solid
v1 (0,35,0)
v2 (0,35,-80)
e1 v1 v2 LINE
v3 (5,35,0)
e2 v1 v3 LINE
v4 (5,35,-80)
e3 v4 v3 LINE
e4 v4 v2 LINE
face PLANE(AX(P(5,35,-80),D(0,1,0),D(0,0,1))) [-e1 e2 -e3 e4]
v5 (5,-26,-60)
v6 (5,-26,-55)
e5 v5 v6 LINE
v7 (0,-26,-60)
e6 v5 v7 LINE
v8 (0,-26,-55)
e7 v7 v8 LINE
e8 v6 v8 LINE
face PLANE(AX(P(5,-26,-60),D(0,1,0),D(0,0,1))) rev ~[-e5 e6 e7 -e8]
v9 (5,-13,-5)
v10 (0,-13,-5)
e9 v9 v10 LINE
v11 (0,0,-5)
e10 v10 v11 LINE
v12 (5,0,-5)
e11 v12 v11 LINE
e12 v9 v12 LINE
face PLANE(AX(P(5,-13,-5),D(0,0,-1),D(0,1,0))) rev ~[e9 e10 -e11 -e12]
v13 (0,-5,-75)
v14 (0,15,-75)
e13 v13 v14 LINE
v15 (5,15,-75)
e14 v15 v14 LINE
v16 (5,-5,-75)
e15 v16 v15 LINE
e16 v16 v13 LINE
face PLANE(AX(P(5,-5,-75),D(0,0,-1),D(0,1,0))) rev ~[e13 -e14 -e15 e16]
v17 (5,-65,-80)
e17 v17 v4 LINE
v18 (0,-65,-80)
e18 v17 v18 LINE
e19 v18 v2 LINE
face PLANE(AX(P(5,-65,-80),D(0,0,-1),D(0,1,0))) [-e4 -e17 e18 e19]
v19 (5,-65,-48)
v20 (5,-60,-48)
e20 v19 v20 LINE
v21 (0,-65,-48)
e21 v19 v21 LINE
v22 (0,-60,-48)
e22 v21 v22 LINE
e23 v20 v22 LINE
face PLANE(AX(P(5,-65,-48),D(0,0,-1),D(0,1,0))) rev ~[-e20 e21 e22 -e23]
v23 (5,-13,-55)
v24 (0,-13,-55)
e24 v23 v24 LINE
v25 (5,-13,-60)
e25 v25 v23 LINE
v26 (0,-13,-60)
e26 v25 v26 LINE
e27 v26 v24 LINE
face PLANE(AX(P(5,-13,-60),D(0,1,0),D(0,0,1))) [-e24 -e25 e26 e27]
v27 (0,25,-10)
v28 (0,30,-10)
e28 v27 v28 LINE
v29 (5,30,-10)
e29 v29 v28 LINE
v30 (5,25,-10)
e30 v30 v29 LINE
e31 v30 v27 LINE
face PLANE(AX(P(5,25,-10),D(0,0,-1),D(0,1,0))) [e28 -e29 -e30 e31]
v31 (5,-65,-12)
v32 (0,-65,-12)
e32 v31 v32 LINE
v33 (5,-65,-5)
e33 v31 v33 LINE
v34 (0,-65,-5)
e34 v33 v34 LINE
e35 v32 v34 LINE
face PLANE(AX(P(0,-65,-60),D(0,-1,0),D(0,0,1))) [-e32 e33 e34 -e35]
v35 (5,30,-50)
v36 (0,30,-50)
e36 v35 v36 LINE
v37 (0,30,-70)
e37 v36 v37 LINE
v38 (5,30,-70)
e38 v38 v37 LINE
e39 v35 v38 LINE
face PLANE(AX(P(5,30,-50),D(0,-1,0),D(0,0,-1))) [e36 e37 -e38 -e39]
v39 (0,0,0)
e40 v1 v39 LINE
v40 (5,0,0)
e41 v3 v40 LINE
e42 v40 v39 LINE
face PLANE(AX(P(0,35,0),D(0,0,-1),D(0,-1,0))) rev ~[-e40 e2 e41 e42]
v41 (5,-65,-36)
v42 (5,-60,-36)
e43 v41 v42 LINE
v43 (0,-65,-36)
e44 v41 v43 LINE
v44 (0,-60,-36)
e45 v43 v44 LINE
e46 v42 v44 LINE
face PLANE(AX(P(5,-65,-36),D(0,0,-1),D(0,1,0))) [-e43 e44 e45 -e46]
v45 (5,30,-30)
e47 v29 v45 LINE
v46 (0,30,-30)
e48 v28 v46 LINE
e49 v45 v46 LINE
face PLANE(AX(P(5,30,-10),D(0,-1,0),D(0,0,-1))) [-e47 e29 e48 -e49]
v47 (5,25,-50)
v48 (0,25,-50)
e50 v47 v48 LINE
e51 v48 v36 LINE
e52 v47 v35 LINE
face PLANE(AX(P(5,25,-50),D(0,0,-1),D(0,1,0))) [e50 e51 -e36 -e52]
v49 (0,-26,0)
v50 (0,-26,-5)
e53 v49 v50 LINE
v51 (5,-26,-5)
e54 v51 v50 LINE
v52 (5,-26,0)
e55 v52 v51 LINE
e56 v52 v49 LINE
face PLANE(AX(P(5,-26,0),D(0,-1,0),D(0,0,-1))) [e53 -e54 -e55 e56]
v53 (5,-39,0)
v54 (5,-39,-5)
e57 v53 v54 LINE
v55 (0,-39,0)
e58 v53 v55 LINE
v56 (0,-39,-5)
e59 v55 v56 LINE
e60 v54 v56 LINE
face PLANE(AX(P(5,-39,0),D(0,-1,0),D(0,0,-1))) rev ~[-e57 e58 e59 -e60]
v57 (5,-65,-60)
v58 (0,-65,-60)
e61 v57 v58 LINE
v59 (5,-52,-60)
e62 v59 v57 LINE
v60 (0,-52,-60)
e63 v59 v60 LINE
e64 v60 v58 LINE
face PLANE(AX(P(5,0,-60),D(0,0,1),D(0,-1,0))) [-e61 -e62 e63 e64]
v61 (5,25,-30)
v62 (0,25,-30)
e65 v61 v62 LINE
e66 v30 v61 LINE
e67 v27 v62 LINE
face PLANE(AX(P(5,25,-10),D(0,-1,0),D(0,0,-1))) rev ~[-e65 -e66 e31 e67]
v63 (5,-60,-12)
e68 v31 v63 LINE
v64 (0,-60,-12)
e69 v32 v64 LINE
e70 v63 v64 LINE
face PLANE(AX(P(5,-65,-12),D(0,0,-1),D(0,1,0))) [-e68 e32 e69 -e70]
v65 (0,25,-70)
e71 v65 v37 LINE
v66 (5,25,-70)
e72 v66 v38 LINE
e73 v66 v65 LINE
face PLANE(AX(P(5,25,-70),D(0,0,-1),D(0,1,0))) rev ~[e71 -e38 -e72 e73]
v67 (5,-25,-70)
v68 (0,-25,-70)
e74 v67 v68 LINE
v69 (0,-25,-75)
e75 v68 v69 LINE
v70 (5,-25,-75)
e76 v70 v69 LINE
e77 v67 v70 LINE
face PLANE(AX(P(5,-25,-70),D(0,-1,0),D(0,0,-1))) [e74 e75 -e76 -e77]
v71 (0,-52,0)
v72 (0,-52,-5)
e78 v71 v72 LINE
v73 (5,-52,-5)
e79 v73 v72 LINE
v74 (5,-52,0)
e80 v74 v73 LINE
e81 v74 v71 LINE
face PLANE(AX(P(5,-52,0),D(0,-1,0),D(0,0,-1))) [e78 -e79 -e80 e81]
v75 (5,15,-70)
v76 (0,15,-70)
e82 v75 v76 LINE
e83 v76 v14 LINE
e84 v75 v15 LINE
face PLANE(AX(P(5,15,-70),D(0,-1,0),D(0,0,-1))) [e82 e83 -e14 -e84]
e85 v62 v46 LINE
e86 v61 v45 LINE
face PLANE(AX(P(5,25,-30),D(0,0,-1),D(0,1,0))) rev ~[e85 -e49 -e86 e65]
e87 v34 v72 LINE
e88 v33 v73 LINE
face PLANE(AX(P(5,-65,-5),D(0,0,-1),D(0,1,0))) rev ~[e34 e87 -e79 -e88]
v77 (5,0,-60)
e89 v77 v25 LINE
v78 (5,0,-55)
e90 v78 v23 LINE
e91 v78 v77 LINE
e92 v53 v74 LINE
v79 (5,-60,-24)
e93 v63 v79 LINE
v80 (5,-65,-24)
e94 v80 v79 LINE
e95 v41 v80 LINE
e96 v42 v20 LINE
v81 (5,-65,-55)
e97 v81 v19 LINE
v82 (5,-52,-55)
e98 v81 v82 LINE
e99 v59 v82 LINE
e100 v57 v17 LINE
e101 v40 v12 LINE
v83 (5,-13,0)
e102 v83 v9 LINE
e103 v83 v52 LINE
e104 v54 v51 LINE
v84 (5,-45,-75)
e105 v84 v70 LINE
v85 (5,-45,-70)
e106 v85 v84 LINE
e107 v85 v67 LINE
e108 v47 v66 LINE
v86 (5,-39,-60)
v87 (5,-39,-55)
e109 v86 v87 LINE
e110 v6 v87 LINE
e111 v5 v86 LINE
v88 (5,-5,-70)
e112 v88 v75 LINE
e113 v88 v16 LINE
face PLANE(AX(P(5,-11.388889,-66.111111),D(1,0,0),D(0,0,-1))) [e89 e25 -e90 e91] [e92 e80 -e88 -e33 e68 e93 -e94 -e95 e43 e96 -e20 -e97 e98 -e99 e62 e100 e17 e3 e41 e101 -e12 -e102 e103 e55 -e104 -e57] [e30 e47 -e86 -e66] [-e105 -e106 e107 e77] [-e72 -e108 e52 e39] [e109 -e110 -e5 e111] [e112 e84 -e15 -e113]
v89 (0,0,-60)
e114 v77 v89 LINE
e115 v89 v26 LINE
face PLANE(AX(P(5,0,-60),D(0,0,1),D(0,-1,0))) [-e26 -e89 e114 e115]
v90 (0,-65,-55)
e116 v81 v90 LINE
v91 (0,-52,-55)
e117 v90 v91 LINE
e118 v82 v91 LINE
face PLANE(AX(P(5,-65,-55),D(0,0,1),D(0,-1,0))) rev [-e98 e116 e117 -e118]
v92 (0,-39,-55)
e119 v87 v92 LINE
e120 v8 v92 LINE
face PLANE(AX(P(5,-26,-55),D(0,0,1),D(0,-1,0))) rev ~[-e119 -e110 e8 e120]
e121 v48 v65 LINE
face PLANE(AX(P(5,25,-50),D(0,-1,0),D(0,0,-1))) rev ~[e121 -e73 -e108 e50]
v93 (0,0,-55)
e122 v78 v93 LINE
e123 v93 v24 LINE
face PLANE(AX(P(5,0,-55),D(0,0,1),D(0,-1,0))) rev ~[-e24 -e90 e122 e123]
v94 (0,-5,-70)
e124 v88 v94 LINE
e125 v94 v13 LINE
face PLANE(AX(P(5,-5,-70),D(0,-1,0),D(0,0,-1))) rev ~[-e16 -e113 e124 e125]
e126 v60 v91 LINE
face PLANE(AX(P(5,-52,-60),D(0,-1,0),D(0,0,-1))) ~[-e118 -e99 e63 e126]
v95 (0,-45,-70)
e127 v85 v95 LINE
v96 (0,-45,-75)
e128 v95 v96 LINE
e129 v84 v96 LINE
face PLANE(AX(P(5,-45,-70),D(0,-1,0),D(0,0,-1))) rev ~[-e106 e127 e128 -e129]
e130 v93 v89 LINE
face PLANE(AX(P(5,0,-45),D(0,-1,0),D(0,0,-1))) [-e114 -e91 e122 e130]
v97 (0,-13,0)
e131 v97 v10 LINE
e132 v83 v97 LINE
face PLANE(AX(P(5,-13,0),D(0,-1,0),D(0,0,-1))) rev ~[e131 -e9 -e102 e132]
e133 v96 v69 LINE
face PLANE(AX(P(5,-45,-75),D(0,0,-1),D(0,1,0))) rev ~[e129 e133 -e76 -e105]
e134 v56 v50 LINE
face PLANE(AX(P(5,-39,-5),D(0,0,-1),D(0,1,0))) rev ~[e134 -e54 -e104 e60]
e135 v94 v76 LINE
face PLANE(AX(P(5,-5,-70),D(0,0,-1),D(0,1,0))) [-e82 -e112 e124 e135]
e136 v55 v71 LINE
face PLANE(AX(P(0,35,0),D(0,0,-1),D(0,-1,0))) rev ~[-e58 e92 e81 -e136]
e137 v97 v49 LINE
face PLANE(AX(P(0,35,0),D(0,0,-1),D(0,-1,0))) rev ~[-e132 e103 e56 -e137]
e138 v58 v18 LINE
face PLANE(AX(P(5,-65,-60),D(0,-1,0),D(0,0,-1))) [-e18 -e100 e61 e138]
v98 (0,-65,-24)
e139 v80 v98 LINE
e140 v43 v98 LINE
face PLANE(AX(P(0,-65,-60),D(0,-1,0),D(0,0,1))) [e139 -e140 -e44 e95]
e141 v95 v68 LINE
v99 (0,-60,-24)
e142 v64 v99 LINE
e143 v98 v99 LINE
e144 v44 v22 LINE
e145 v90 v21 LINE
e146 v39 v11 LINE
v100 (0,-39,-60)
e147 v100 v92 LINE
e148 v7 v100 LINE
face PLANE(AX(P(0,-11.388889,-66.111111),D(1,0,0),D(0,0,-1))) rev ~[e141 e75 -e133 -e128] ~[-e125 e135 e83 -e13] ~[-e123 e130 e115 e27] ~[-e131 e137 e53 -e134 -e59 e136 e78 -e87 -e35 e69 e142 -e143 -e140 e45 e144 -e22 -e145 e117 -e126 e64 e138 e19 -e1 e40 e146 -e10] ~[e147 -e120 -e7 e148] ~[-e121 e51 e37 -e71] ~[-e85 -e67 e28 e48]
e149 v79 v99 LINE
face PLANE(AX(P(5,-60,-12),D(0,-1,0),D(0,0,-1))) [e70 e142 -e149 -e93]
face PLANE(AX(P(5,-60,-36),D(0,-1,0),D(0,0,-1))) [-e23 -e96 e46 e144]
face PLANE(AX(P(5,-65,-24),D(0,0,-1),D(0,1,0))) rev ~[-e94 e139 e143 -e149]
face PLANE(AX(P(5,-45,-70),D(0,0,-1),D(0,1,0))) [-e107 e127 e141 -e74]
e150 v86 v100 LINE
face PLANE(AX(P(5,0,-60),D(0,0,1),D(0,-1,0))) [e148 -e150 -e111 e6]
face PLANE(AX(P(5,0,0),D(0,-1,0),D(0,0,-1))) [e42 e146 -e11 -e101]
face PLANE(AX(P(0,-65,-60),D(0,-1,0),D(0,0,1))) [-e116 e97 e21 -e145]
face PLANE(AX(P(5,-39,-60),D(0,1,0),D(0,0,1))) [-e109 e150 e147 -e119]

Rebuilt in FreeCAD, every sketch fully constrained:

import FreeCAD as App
import Part
import Sketcher
Q = App.Units.Quantity


def add_polygon(sketch, points):
    """Adds a closed chain of lines whose ends are joined by coincident constraints."""
    first, n = sketch.GeometryCount, len(points)
    for a, b in zip(points, points[1:] + points[:1]):
        sketch.addGeometry(Part.LineSegment(App.Vector(*a, 0), App.Vector(*b, 0)), False)
    for i in range(n):
        sketch.addConstraint(Sketcher.Constraint("Coincident", first + i, 2, first + (i + 1) % n, 1))

doc = App.newDocument("Part")
body = doc.addObject("PartDesign::Body", "Body")

# Sketch on YZ plane
sketch1 = body.newObject("Sketcher::SketchObject", "Sketch")
sketch1.AttachmentSupport = (doc.getObject("YZ_Plane"), [""])
sketch1.MapMode = "FlatFace"
add_polygon(sketch1, [(35, 0), (-65, 0), (-65, -60), (0, -60), (0, -45), (35, -45)])  # lines 0-5
sketch1.addConstraint([
    Sketcher.Constraint("Horizontal", 0),
    Sketcher.Constraint("Vertical", 1),
    Sketcher.Constraint("Horizontal", 2),
    Sketcher.Constraint("Vertical", 3),
    Sketcher.Constraint("Horizontal", 4),
    Sketcher.Constraint("Vertical", 5),
    Sketcher.Constraint("PointOnObject", 0, 2, -1),
    Sketcher.Constraint("PointOnObject", 2, 2, -2),
    Sketcher.Constraint("DistanceX", 0, 2, 0, 1, Q("100 mm")),
    Sketcher.Constraint("DistanceX", 2, 1, 2, 2, Q("65 mm")),
    Sketcher.Constraint("DistanceY", 1, 2, 1, 1, Q("60 mm")),
    Sketcher.Constraint("DistanceY", 3, 1, 3, 2, Q("15 mm")),
])
pad1 = body.newObject("PartDesign::Pad", "Pad")
pad1.Profile = sketch1
pad1.Length = 5

# Sketch on YZ plane
sketch2 = body.newObject("Sketcher::SketchObject", "Sketch001")
sketch2.AttachmentSupport = (doc.getObject("YZ_Plane"), [""])
sketch2.MapMode = "FlatFace"
sketch2.AttachmentOffset = App.Placement(App.Vector(0, 0, 5), App.Rotation())
add_polygon(sketch2, [(-60, -12), (-65, -12), (-65, -24), (-60, -24)])  # lines 0-3
sketch2.addConstraint([
    Sketcher.Constraint("Horizontal", 0),
    Sketcher.Constraint("Vertical", 1),
    Sketcher.Constraint("Horizontal", 2),
    Sketcher.Constraint("Vertical", 3),
    Sketcher.Constraint("DistanceX", 0, 2, 0, 1, Q("5 mm")),
    Sketcher.Constraint("DistanceY", 1, 2, 1, 1, Q("12 mm")),
    Sketcher.Constraint("DistanceX", 0, 2, -1, 1, Q("65 mm")),
    Sketcher.Constraint("DistanceY", 0, 2, -1, 1, Q("12 mm")),
])
pocket1 = body.newObject("PartDesign::Pocket", "Pocket")
pocket1.Profile = sketch2
pocket1.Length = 5
doc.recompute()

linearpattern = body.newObject("PartDesign::LinearPattern", "LinearPattern")
linearpattern.Originals = [pocket1]
linearpattern.Direction = (doc.getObject("Z_Axis"), [""])
linearpattern.Mode = "offset"
linearpattern.Offset = 24
linearpattern.Occurrences = 2
linearpattern.Reversed = True
body.Tip = linearpattern

# Sketch on YZ plane
sketch3 = body.newObject("Sketcher::SketchObject", "Sketch002")
sketch3.AttachmentSupport = (doc.getObject("YZ_Plane"), [""])
sketch3.MapMode = "FlatFace"
sketch3.AttachmentOffset = App.Placement(App.Vector(0, 0, 5), App.Rotation())
add_polygon(sketch3, [(-52, 0), (-65, 0), (-65, -5), (-52, -5)])  # lines 0-3
sketch3.addConstraint([
    Sketcher.Constraint("Horizontal", 0),
    Sketcher.Constraint("Vertical", 1),
    Sketcher.Constraint("Horizontal", 2),
    Sketcher.Constraint("Vertical", 3),
    Sketcher.Constraint("PointOnObject", 0, 2, -1),
    Sketcher.Constraint("DistanceX", 0, 2, 0, 1, Q("13 mm")),
    Sketcher.Constraint("DistanceY", 1, 2, 1, 1, Q("5 mm")),
    Sketcher.Constraint("DistanceX", 0, 2, -1, 1, Q("65 mm")),
])
pocket2 = body.newObject("PartDesign::Pocket", "Pocket001")
pocket2.Profile = sketch3
pocket2.Length = 5
doc.recompute()

linearpattern2 = body.newObject("PartDesign::LinearPattern", "LinearPattern001")
linearpattern2.Originals = [pocket2]
linearpattern2.Direction = (doc.getObject("Y_Axis"), [""])
linearpattern2.Mode = "offset"
linearpattern2.Offset = 26
linearpattern2.Occurrences = 3
body.Tip = linearpattern2
doc.recompute()

datumplane = body.newObject("PartDesign::Plane", "DatumPlane")
datumplane.AttachmentSupport = (doc.getObject("XY_Plane"), [""])
datumplane.MapMode = "FlatFace"
datumplane.AttachmentOffset = App.Placement(App.Vector(0, 0, -30), App.Rotation())
mirrored = body.newObject("PartDesign::Mirrored", "Mirrored")
mirrored.Originals = [pocket2]
mirrored.MirrorPlane = (datumplane, [""])
body.Tip = mirrored

# Sketch on YZ plane
sketch4 = body.newObject("Sketcher::SketchObject", "Sketch003")
sketch4.AttachmentSupport = (doc.getObject("YZ_Plane"), [""])
sketch4.MapMode = "FlatFace"
sketch4.AttachmentOffset = App.Placement(App.Vector(0, 0, 5), App.Rotation())
add_polygon(sketch4, [(-39, -60), (-26, -60), (-26, -55), (-39, -55)])  # lines 0-3
sketch4.addConstraint([
    Sketcher.Constraint("Horizontal", 0),
    Sketcher.Constraint("Vertical", 1),
    Sketcher.Constraint("Horizontal", 2),
    Sketcher.Constraint("Vertical", 3),
    Sketcher.Constraint("DistanceX", 0, 1, 0, 2, Q("13 mm")),
    Sketcher.Constraint("DistanceY", 1, 1, 1, 2, Q("5 mm")),
    Sketcher.Constraint("DistanceX", 0, 2, -1, 1, Q("26 mm")),
    Sketcher.Constraint("DistanceY", 0, 2, -1, 1, Q("60 mm")),
])
pocket3 = body.newObject("PartDesign::Pocket", "Pocket002")
pocket3.Profile = sketch4
pocket3.Length = 5

# Sketch on YZ plane
sketch5 = body.newObject("Sketcher::SketchObject", "Sketch004")
sketch5.AttachmentSupport = (doc.getObject("YZ_Plane"), [""])
sketch5.MapMode = "FlatFace"
sketch5.AttachmentOffset = App.Placement(App.Vector(0, 0, 5), App.Rotation())
add_polygon(sketch5, [(-13, -60), (0, -60), (0, -55), (-13, -55)])  # lines 0-3
sketch5.addConstraint([
    Sketcher.Constraint("Horizontal", 0),
    Sketcher.Constraint("Vertical", 1),
    Sketcher.Constraint("Horizontal", 2),
    Sketcher.Constraint("Vertical", 3),
    Sketcher.Constraint("PointOnObject", 0, 2, -2),
    Sketcher.Constraint("DistanceX", 0, 1, 0, 2, Q("13 mm")),
    Sketcher.Constraint("DistanceY", 1, 1, 1, 2, Q("5 mm")),
    Sketcher.Constraint("DistanceY", 0, 2, -1, 1, Q("60 mm")),
])
pocket4 = body.newObject("PartDesign::Pocket", "Pocket003")
pocket4.Profile = sketch5
pocket4.Length = 5

# Sketch on YZ plane
sketch6 = body.newObject("Sketcher::SketchObject", "Sketch005")
sketch6.AttachmentSupport = (doc.getObject("YZ_Plane"), [""])
sketch6.MapMode = "FlatFace"
sketch6.AttachmentOffset = App.Placement(App.Vector(0, 0, 5), App.Rotation())
add_polygon(sketch6, [(0, -45), (0, -60), (-65, -60), (-65, -80), (35, -80), (35, -45)])  # lines 0-5
sketch6.addConstraint([
    Sketcher.Constraint("Vertical", 0),
    Sketcher.Constraint("Horizontal", 1),
    Sketcher.Constraint("Vertical", 2),
    Sketcher.Constraint("Horizontal", 3),
    Sketcher.Constraint("Vertical", 4),
    Sketcher.Constraint("Horizontal", 5),
    Sketcher.Constraint("PointOnObject", 0, 2, -2),
    Sketcher.Constraint("Equal", 5, 4),
    Sketcher.Constraint("DistanceX", 1, 2, 1, 1, Q("65 mm")),
    Sketcher.Constraint("DistanceX", 3, 1, 3, 2, Q("100 mm")),
    Sketcher.Constraint("DistanceY", 0, 2, 0, 1, Q("15 mm")),
    Sketcher.Constraint("DistanceY", 0, 2, -1, 1, Q("60 mm")),
])
pad2 = body.newObject("PartDesign::Pad", "Pad001")
pad2.Profile = sketch6
pad2.Length = 5
pad2.Reversed = True

# Sketch on YZ plane
sketch7 = body.newObject("Sketcher::SketchObject", "Sketch006")
sketch7.AttachmentSupport = (doc.getObject("YZ_Plane"), [""])
sketch7.MapMode = "FlatFace"
sketch7.AttachmentOffset = App.Placement(App.Vector(0, 0, 5), App.Rotation())
add_polygon(sketch7, [(30, -10), (25, -10), (25, -30), (30, -30)])  # lines 0-3
add_polygon(sketch7, [(30, -50), (25, -50), (25, -70), (30, -70)])  # lines 4-7
sketch7.addConstraint([
    Sketcher.Constraint("Horizontal", 0),
    Sketcher.Constraint("Vertical", 1),
    Sketcher.Constraint("Horizontal", 2),
    Sketcher.Constraint("Vertical", 3),
    Sketcher.Constraint("Horizontal", 4),
    Sketcher.Constraint("Vertical", 5),
    Sketcher.Constraint("Horizontal", 6),
    Sketcher.Constraint("Vertical", 7),
    Sketcher.Constraint("Vertical", 1, 2, 4, 2),
    Sketcher.Constraint("Vertical", 3, 2, 6, 2),
    Sketcher.Constraint("Equal", 3, 5),
    Sketcher.Constraint("DistanceX", 0, 2, 0, 1, Q("5 mm")),
    Sketcher.Constraint("DistanceY", 1, 2, 1, 1, Q("20 mm")),
    Sketcher.Constraint("DistanceX", -1, 1, 0, 2, Q("25 mm")),
    Sketcher.Constraint("DistanceY", 0, 2, -1, 1, Q("10 mm")),
    Sketcher.Constraint("DistanceY", 4, 2, -1, 1, Q("50 mm")),
])
pocket5 = body.newObject("PartDesign::Pocket", "Pocket004")
pocket5.Profile = sketch7
pocket5.Length = 5

# Sketch on YZ plane
sketch8 = body.newObject("Sketcher::SketchObject", "Sketch007")
sketch8.AttachmentSupport = (doc.getObject("YZ_Plane"), [""])
sketch8.MapMode = "FlatFace"
sketch8.AttachmentOffset = App.Placement(App.Vector(0, 0, 5), App.Rotation())
add_polygon(sketch8, [(15, -70), (-5, -70), (-5, -75), (15, -75)])  # lines 0-3
add_polygon(sketch8, [(-25, -70), (-45, -70), (-45, -75), (-25, -75)])  # lines 4-7
sketch8.addConstraint([
    Sketcher.Constraint("Horizontal", 0),
    Sketcher.Constraint("Vertical", 1),
    Sketcher.Constraint("Horizontal", 2),
    Sketcher.Constraint("Vertical", 3),
    Sketcher.Constraint("Horizontal", 4),
    Sketcher.Constraint("Vertical", 5),
    Sketcher.Constraint("Horizontal", 6),
    Sketcher.Constraint("Vertical", 7),
    Sketcher.Constraint("Horizontal", 3, 2, 4, 2),
    Sketcher.Constraint("Horizontal", 2, 2, 5, 2),
    Sketcher.Constraint("Equal", 2, 4),
    Sketcher.Constraint("DistanceX", 0, 2, 0, 1, Q("20 mm")),
    Sketcher.Constraint("DistanceY", 1, 2, 1, 1, Q("5 mm")),
    Sketcher.Constraint("DistanceX", 0, 2, -1, 1, Q("5 mm")),
    Sketcher.Constraint("DistanceY", 0, 2, -1, 1, Q("70 mm")),
    Sketcher.Constraint("DistanceX", 4, 2, -1, 1, Q("45 mm")),
])
pocket6 = body.newObject("PartDesign::Pocket", "Pocket005")
pocket6.Profile = sketch8
pocket6.Length = 5

doc.recompute()
